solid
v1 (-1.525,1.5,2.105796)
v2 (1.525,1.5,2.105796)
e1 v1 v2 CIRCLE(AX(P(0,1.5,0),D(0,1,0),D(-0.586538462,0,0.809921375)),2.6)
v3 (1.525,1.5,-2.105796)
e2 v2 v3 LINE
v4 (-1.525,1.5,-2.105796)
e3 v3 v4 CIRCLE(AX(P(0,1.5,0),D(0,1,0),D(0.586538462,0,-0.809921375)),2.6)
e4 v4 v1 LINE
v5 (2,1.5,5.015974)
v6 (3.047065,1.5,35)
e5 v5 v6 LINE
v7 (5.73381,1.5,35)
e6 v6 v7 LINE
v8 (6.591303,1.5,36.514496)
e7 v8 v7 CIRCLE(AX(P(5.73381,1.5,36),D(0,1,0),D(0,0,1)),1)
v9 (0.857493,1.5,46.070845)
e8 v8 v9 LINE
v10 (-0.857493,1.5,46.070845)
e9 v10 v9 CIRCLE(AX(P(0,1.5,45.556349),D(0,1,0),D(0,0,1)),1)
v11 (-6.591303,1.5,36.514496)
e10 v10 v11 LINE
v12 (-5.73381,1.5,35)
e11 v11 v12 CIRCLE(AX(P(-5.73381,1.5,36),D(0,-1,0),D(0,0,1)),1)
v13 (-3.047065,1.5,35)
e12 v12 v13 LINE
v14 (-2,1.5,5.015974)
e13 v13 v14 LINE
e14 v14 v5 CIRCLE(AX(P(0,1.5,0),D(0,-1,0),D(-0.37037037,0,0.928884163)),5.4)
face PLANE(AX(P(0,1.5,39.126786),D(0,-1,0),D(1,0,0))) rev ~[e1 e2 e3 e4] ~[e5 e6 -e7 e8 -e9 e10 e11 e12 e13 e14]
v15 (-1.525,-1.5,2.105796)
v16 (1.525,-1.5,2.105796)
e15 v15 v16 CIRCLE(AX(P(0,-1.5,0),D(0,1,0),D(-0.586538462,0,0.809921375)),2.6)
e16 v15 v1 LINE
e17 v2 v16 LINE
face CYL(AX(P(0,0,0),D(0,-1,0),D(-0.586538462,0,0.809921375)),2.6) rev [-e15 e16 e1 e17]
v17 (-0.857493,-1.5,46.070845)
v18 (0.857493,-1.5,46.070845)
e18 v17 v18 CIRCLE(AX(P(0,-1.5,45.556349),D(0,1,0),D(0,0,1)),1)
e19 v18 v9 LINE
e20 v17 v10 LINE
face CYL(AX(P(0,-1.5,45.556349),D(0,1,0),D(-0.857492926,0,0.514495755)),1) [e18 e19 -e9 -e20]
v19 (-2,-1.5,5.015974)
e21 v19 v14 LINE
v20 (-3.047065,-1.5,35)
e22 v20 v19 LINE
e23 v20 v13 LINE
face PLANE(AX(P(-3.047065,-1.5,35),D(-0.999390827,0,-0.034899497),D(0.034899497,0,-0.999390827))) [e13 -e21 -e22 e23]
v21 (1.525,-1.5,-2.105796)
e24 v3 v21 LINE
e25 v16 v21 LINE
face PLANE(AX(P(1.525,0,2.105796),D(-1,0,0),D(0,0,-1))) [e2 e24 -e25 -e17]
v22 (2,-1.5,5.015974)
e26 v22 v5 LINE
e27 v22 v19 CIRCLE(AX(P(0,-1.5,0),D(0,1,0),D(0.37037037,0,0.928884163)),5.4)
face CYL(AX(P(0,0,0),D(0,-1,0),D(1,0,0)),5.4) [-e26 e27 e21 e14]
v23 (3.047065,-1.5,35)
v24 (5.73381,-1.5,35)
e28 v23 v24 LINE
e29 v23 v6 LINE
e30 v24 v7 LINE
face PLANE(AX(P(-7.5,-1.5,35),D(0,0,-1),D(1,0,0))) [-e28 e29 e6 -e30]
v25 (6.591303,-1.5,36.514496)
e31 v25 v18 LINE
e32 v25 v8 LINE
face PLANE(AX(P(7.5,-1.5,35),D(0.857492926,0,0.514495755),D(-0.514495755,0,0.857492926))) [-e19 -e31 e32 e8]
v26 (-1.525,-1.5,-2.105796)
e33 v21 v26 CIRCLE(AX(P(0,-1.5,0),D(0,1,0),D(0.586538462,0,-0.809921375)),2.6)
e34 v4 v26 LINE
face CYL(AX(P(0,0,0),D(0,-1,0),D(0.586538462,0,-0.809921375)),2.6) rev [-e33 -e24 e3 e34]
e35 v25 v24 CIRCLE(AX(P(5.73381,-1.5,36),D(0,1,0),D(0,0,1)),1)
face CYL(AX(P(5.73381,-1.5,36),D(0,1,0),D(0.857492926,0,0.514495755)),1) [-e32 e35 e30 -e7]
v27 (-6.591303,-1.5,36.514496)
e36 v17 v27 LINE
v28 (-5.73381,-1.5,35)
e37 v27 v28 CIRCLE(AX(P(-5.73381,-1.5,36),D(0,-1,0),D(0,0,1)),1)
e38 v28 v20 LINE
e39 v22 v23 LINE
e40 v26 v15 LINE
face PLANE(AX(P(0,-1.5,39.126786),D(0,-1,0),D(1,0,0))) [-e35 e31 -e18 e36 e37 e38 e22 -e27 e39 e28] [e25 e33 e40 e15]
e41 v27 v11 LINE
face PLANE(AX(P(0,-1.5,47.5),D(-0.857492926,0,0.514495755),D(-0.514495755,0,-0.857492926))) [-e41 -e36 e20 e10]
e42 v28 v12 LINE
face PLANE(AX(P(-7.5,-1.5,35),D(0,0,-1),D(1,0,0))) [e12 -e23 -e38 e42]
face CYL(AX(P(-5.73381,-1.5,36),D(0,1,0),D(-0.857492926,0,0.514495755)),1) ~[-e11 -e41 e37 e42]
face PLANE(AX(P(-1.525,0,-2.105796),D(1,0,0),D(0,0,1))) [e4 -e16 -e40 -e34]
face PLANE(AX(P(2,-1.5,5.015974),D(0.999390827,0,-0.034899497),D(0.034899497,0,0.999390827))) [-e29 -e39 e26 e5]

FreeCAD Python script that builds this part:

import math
import FreeCAD as App
import Part
import Sketcher

V = App.Vector
Q = App.Units.Quantity


def edges_at(feature, points):
    """Names of the edges that pass closest to the given points."""
    edges = feature.Shape.Edges
    near = lambda p: min(range(len(edges)), key=lambda i: edges[i].distToShape(Part.Vertex(*p))[0])
    return sorted({f"Edge{near(p) + 1}" for p in points})


def add_polygon(sketch, points):
    """Adds a closed chain of lines whose ends are joined by coincident constraints."""
    first, n = sketch.GeometryCount, len(points)
    for a, b in zip(points, points[1:] + points[:1]):
        sketch.addGeometry(Part.LineSegment(App.Vector(*a, 0), App.Vector(*b, 0)), False)
    for i in range(n):
        sketch.addConstraint(Sketcher.Constraint("Coincident", first + i, 2, first + (i + 1) % n, 1))

doc = App.newDocument("Part")
body = doc.addObject("PartDesign::Body", "Body")

# Sketch on XZ plane
sketch1 = body.newObject("Sketcher::SketchObject", "Sketch")
sketch1.AttachmentSupport = (doc.getObject("XZ_Plane"), [""])
sketch1.MapMode = "FlatFace"
sketch1.addGeometry(Part.Circle(V(0, 0, 0), V(0, 0, 1), 5.4), False)
sketch1.addGeometry(Part.ArcOfCircle(Part.Circle(V(0, 0, 0), V(0, 0, 1), 2.6), math.radians(54), math.radians(126)), False)
sketch1.addGeometry(Part.LineSegment(V(1.5, 2.1, 0), V(1.5, -2.1, 0)), False)
sketch1.addGeometry(Part.ArcOfCircle(Part.Circle(V(0, 0, 0), V(0, 0, 1), 2.6), math.radians(-126), math.radians(-54)), False)
sketch1.addGeometry(Part.LineSegment(V(-1.5, -2.1, 0), V(-1.5, 2.1, 0)), False)
sketch1.addConstraint(Sketcher.Constraint("Coincident", 1, 1, 2, 1))
sketch1.addConstraint(Sketcher.Constraint("Coincident", 2, 2, 3, 2))
sketch1.addConstraint(Sketcher.Constraint("Coincident", 3, 1, 4, 1))
sketch1.addConstraint(Sketcher.Constraint("Coincident", 4, 2, 1, 2))
sketch1.addConstraint(Sketcher.Constraint("Vertical", 2))
sketch1.addConstraint(Sketcher.Constraint("Vertical", 4))
sketch1.addConstraint(Sketcher.Constraint("Coincident", 0, 3, -1, 1))
sketch1.addConstraint(Sketcher.Constraint("Coincident", 1, 3, -1, 1))
sketch1.addConstraint(Sketcher.Constraint("Coincident", 3, 3, -1, 1))
sketch1.addConstraint(Sketcher.Constraint("Equal", 1, 3))
sketch1.addConstraint(Sketcher.Constraint("Horizontal", 2, 2, 3, 1))
sketch1.addConstraint(Sketcher.Constraint("Diameter", 0, 10.8))
sketch1.addConstraint(Sketcher.Constraint("Radius", 1, 2.6))
sketch1.addConstraint(Sketcher.Constraint("DistanceX", 3, 1, 2, 2, 3.05))
pad1 = body.newObject("PartDesign::Pad", "Pad")
pad1.Profile = sketch1
pad1.Length = 3
pad1.Midplane = True

# Sketch on XZ plane
sketch2 = body.newObject("Sketcher::SketchObject", "Sketch001")
sketch2.AttachmentSupport = (doc.getObject("XZ_Plane"), [""])
sketch2.MapMode = "FlatFace"
sketch2.AttachmentOffset = App.Placement(V(0, 0, 1.5), App.Rotation())
sketch2.addGeometry(Part.ArcOfCircle(Part.Circle(V(0, 0, 0), V(0, 0, 1), 5.4), math.radians(68), math.radians(112)), False)
sketch2.addGeometry(Part.LineSegment(V(2, 5, 0), V(3, 35, 0)), False)
sketch2.addGeometry(Part.LineSegment(V(3, 35, 0), V(-3, 35, 0)), False)
sketch2.addGeometry(Part.LineSegment(V(-3, 35, 0), V(-2, 5, 0)), False)
sketch2.addConstraint(Sketcher.Constraint("Coincident", 0, 1, 1, 1))
sketch2.addConstraint(Sketcher.Constraint("Coincident", 1, 2, 2, 1))
sketch2.addConstraint(Sketcher.Constraint("Coincident", 2, 2, 3, 1))
sketch2.addConstraint(Sketcher.Constraint("Coincident", 3, 2, 0, 2))
sketch2.addConstraint(Sketcher.Constraint("Horizontal", 2))
sketch2.addConstraint(Sketcher.Constraint("Coincident", 0, 3, -1, 1))
sketch2.addConstraint(Sketcher.Constraint("Horizontal", 0, 1, 3, 2))
sketch2.addConstraint(Sketcher.Constraint("Equal", 1, 3))
sketch2.addConstraint(Sketcher.Constraint("Radius", 0, 5.4))
sketch2.addConstraint(Sketcher.Constraint("Angle", 1, Q("88 deg")))
sketch2.addConstraint(Sketcher.Constraint("DistanceX", -1, 1, 0, 1, 2.0))
sketch2.addConstraint(Sketcher.Constraint("DistanceY", -1, 1, 1, 2, 35.0))
pad2 = body.newObject("PartDesign::Pad", "Pad001")
pad2.Profile = sketch2
pad2.Length = 3
pad2.Reversed = True

# Sketch on XZ plane
sketch3 = body.newObject("Sketcher::SketchObject", "Sketch002")
sketch3.AttachmentSupport = (doc.getObject("XZ_Plane"), [""])
sketch3.MapMode = "FlatFace"
sketch3.AttachmentOffset = App.Placement(V(0, 0, 1.5), App.Rotation())
add_polygon(sketch3, [(0, 48), (-8, 35), (8, 35)])  # lines 0-2
sketch3.addConstraint(Sketcher.Constraint("Horizontal", 1))
sketch3.addConstraint(Sketcher.Constraint("PointOnObject", 2, 2, -2))
sketch3.addConstraint(Sketcher.Constraint("Equal", 0, 2))
sketch3.addConstraint(Sketcher.Constraint("DistanceX", 1, 1, 1, 2, 15.0))
sketch3.addConstraint(Sketcher.Constraint("DistanceY", -1, 1, 0, 2, 35.0))
sketch3.addConstraint(Sketcher.Constraint("DistanceY", -1, 1, 2, 2, 47.5))
pad3 = body.newObject("PartDesign::Pad", "Pad002")
pad3.Profile = sketch3
pad3.Length = 3
pad3.Reversed = True
doc.recompute()

fillet = body.newObject("PartDesign::Fillet", "Fillet")
fillet.Base = (pad3, edges_at(pad3, [(7.5, 0, 35), (-7.5, 0, 35), (0, 0, 47.5)]))
fillet.Radius = 1

doc.recompute()
